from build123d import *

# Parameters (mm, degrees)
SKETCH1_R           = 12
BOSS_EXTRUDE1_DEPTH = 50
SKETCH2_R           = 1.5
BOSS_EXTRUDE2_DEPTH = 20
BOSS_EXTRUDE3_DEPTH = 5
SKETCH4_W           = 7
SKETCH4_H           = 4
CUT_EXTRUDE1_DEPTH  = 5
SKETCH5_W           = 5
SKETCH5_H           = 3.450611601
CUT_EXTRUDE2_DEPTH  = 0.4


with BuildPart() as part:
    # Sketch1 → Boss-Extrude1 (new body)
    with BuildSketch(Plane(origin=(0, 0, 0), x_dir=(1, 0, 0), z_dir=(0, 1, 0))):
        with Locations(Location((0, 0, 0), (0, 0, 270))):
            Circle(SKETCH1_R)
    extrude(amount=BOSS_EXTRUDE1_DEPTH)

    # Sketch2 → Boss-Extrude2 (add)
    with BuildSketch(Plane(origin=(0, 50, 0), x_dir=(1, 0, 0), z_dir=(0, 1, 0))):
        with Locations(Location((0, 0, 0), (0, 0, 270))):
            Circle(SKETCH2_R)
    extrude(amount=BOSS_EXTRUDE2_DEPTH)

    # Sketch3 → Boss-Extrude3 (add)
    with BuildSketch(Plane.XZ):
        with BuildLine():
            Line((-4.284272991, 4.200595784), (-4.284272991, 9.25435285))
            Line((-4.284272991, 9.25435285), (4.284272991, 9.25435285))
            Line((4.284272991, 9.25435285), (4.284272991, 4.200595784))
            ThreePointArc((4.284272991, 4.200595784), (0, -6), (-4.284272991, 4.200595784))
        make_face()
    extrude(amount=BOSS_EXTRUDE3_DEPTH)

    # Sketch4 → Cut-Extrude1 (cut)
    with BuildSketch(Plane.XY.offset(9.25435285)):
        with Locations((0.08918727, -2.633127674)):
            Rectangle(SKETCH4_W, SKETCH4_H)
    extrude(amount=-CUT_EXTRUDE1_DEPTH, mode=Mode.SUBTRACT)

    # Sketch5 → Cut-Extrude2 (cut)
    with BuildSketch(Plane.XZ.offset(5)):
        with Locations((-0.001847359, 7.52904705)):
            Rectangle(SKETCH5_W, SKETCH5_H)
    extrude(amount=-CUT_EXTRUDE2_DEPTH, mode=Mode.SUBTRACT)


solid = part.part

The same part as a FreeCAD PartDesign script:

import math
import FreeCAD as App
import Part
import Sketcher
Q = App.Units.Quantity

doc = App.newDocument("Part")
body = doc.addObject("PartDesign::Body", "Body")

# Sketch on XZ plane
sketch1 = body.newObject("Sketcher::SketchObject", "Sketch")
sketch1.AttachmentSupport = (doc.getObject("XZ_Plane"), [""])
sketch1.MapMode = "FlatFace"
sketch1.addGeometry(Part.Circle(App.Vector(0, 0, 0), App.Vector(0, 0, 1), 12), False)
sketch1.addConstraint([
    Sketcher.Constraint("Coincident", 0, 3, -1, 1),
    Sketcher.Constraint("Diameter", 0, Q("24 mm")),
])
pad1 = body.newObject("PartDesign::Pad", "Pad")
pad1.Profile = sketch1
pad1.Length = 50
pad1.Reversed = True

# Sketch on XZ plane
sketch2 = body.newObject("Sketcher::SketchObject", "Sketch001")
sketch2.AttachmentSupport = (doc.getObject("XZ_Plane"), [""])
sketch2.MapMode = "FlatFace"
sketch2.AttachmentOffset = App.Placement(App.Vector(0, 0, -50), App.Rotation())
sketch2.addGeometry(Part.Circle(App.Vector(0, 0, 0), App.Vector(0, 0, 1), 1.5), False)
sketch2.addConstraint([
    Sketcher.Constraint("Coincident", 0, 3, -1, 1),
    Sketcher.Constraint("Diameter", 0, Q("3 mm")),
])
pad2 = body.newObject("PartDesign::Pad", "Pad001")
pad2.Profile = sketch2
pad2.Length = 20
pad2.Reversed = True

# Sketch on XZ plane
sketch3 = body.newObject("Sketcher::SketchObject", "Sketch002")
sketch3.AttachmentSupport = (doc.getObject("XZ_Plane"), [""])
sketch3.MapMode = "FlatFace"
sketch3.addGeometry([
    Part.LineSegment(App.Vector(-4, 9, 0), App.Vector(-4, 4, 0)),
    Part.ArcOfCircle(Part.Circle(App.Vector(0, 0, 0), App.Vector(0, 0, 1), 6), math.radians(136), math.radians(404)),
    Part.LineSegment(App.Vector(4, 4, 0), App.Vector(4, 9, 0)),
    Part.LineSegment(App.Vector(4, 9, 0), App.Vector(-4, 9, 0)),
], False)
sketch3.addConstraint([
    Sketcher.Constraint("Coincident", 0, 2, 1, 1),
    Sketcher.Constraint("Coincident", 1, 2, 2, 1),
    Sketcher.Constraint("Coincident", 2, 2, 3, 1),
    Sketcher.Constraint("Coincident", 3, 2, 0, 1),
    Sketcher.Constraint("Vertical", 0),
    Sketcher.Constraint("Vertical", 2),
    Sketcher.Constraint("Horizontal", 3),
    Sketcher.Constraint("Coincident", 1, 3, -1, 1),
    Sketcher.Constraint("Horizontal", 0, 2, 1, 2),
    Sketcher.Constraint("Radius", 1, Q("6 mm")),
    Sketcher.Constraint("DistanceX", 3, 2, 3, 1, Q("8.568546 mm")),
    Sketcher.Constraint("DistanceY", 0, 2, 0, 1, Q("5.053757 mm")),
])
pad3 = body.newObject("PartDesign::Pad", "Pad002")
pad3.Profile = sketch3
pad3.Length = 5

# Sketch on XY plane
sketch4 = body.newObject("Sketcher::SketchObject", "Sketch003")
sketch4.AttachmentSupport = (doc.getObject("XY_Plane"), [""])
sketch4.MapMode = "FlatFace"
sketch4.AttachmentOffset = App.Placement(App.Vector(0, 0, 9.254353), App.Rotation())
sketch4.addGeometry([
    Part.LineSegment(App.Vector(-3.4, -0.6, 0), App.Vector(-3.4, -4.6, 0)),
    Part.LineSegment(App.Vector(-3.4, -4.6, 0), App.Vector(3.6, -4.6, 0)),
    Part.LineSegment(App.Vector(3.6, -4.6, 0), App.Vector(3.6, -0.6, 0)),
    Part.LineSegment(App.Vector(3.6, -0.6, 0), App.Vector(-3.4, -0.6, 0)),
], False)
sketch4.addConstraint([
    Sketcher.Constraint("Coincident", 0, 2, 1, 1),
    Sketcher.Constraint("Coincident", 1, 2, 2, 1),
    Sketcher.Constraint("Coincident", 2, 2, 3, 1),
    Sketcher.Constraint("Coincident", 3, 2, 0, 1),
    Sketcher.Constraint("Vertical", 0),
    Sketcher.Constraint("Horizontal", 1),
    Sketcher.Constraint("Vertical", 2),
    Sketcher.Constraint("Horizontal", 3),
    Sketcher.Constraint("DistanceX", 1, 1, 1, 2, Q("7 mm")),
    Sketcher.Constraint("DistanceY", 0, 2, 0, 1, Q("4 mm")),
    Sketcher.Constraint("DistanceX", 0, 2, -1, 1, Q("3.410813 mm")),
    Sketcher.Constraint("DistanceY", 0, 2, -1, 1, Q("4.633128 mm")),
])
pocket1 = body.newObject("PartDesign::Pocket", "Pocket")
pocket1.Profile = sketch4
pocket1.Length = 5

# Sketch on XZ plane
sketch5 = body.newObject("Sketcher::SketchObject", "Sketch004")
sketch5.AttachmentSupport = (doc.getObject("XZ_Plane"), [""])
sketch5.MapMode = "FlatFace"
sketch5.AttachmentOffset = App.Placement(App.Vector(0, 0, 5), App.Rotation())
sketch5.addGeometry([
    Part.LineSegment(App.Vector(-2.5, 9.3, 0), App.Vector(-2.5, 5.8, 0)),
    Part.LineSegment(App.Vector(-2.5, 5.8, 0), App.Vector(2.5, 5.8, 0)),
    Part.LineSegment(App.Vector(2.5, 5.8, 0), App.Vector(2.5, 9.3, 0)),
    Part.LineSegment(App.Vector(2.5, 9.3, 0), App.Vector(-2.5, 9.3, 0)),
], False)
sketch5.addConstraint([
    Sketcher.Constraint("Coincident", 0, 2, 1, 1),
    Sketcher.Constraint("Coincident", 1, 2, 2, 1),
    Sketcher.Constraint("Coincident", 2, 2, 3, 1),
    Sketcher.Constraint("Coincident", 3, 2, 0, 1),
    Sketcher.Constraint("Vertical", 0),
    Sketcher.Constraint("Horizontal", 1),
    Sketcher.Constraint("Vertical", 2),
    Sketcher.Constraint("Horizontal", 3),
    Sketcher.Constraint("DistanceX", 1, 1, 1, 2, Q("5 mm")),
    Sketcher.Constraint("DistanceY", 0, 2, 0, 1, Q("3.450612 mm")),
    Sketcher.Constraint("DistanceY", -1, 1, 0, 2, Q("5.803741 mm")),
    Sketcher.Constraint("DistanceX", 0, 2, -1, 1, Q("2.501847 mm")),
])
pocket2 = body.newObject("PartDesign::Pocket", "Pocket001")
pocket2.Profile = sketch5
pocket2.Length = 0.4

doc.recompute()
